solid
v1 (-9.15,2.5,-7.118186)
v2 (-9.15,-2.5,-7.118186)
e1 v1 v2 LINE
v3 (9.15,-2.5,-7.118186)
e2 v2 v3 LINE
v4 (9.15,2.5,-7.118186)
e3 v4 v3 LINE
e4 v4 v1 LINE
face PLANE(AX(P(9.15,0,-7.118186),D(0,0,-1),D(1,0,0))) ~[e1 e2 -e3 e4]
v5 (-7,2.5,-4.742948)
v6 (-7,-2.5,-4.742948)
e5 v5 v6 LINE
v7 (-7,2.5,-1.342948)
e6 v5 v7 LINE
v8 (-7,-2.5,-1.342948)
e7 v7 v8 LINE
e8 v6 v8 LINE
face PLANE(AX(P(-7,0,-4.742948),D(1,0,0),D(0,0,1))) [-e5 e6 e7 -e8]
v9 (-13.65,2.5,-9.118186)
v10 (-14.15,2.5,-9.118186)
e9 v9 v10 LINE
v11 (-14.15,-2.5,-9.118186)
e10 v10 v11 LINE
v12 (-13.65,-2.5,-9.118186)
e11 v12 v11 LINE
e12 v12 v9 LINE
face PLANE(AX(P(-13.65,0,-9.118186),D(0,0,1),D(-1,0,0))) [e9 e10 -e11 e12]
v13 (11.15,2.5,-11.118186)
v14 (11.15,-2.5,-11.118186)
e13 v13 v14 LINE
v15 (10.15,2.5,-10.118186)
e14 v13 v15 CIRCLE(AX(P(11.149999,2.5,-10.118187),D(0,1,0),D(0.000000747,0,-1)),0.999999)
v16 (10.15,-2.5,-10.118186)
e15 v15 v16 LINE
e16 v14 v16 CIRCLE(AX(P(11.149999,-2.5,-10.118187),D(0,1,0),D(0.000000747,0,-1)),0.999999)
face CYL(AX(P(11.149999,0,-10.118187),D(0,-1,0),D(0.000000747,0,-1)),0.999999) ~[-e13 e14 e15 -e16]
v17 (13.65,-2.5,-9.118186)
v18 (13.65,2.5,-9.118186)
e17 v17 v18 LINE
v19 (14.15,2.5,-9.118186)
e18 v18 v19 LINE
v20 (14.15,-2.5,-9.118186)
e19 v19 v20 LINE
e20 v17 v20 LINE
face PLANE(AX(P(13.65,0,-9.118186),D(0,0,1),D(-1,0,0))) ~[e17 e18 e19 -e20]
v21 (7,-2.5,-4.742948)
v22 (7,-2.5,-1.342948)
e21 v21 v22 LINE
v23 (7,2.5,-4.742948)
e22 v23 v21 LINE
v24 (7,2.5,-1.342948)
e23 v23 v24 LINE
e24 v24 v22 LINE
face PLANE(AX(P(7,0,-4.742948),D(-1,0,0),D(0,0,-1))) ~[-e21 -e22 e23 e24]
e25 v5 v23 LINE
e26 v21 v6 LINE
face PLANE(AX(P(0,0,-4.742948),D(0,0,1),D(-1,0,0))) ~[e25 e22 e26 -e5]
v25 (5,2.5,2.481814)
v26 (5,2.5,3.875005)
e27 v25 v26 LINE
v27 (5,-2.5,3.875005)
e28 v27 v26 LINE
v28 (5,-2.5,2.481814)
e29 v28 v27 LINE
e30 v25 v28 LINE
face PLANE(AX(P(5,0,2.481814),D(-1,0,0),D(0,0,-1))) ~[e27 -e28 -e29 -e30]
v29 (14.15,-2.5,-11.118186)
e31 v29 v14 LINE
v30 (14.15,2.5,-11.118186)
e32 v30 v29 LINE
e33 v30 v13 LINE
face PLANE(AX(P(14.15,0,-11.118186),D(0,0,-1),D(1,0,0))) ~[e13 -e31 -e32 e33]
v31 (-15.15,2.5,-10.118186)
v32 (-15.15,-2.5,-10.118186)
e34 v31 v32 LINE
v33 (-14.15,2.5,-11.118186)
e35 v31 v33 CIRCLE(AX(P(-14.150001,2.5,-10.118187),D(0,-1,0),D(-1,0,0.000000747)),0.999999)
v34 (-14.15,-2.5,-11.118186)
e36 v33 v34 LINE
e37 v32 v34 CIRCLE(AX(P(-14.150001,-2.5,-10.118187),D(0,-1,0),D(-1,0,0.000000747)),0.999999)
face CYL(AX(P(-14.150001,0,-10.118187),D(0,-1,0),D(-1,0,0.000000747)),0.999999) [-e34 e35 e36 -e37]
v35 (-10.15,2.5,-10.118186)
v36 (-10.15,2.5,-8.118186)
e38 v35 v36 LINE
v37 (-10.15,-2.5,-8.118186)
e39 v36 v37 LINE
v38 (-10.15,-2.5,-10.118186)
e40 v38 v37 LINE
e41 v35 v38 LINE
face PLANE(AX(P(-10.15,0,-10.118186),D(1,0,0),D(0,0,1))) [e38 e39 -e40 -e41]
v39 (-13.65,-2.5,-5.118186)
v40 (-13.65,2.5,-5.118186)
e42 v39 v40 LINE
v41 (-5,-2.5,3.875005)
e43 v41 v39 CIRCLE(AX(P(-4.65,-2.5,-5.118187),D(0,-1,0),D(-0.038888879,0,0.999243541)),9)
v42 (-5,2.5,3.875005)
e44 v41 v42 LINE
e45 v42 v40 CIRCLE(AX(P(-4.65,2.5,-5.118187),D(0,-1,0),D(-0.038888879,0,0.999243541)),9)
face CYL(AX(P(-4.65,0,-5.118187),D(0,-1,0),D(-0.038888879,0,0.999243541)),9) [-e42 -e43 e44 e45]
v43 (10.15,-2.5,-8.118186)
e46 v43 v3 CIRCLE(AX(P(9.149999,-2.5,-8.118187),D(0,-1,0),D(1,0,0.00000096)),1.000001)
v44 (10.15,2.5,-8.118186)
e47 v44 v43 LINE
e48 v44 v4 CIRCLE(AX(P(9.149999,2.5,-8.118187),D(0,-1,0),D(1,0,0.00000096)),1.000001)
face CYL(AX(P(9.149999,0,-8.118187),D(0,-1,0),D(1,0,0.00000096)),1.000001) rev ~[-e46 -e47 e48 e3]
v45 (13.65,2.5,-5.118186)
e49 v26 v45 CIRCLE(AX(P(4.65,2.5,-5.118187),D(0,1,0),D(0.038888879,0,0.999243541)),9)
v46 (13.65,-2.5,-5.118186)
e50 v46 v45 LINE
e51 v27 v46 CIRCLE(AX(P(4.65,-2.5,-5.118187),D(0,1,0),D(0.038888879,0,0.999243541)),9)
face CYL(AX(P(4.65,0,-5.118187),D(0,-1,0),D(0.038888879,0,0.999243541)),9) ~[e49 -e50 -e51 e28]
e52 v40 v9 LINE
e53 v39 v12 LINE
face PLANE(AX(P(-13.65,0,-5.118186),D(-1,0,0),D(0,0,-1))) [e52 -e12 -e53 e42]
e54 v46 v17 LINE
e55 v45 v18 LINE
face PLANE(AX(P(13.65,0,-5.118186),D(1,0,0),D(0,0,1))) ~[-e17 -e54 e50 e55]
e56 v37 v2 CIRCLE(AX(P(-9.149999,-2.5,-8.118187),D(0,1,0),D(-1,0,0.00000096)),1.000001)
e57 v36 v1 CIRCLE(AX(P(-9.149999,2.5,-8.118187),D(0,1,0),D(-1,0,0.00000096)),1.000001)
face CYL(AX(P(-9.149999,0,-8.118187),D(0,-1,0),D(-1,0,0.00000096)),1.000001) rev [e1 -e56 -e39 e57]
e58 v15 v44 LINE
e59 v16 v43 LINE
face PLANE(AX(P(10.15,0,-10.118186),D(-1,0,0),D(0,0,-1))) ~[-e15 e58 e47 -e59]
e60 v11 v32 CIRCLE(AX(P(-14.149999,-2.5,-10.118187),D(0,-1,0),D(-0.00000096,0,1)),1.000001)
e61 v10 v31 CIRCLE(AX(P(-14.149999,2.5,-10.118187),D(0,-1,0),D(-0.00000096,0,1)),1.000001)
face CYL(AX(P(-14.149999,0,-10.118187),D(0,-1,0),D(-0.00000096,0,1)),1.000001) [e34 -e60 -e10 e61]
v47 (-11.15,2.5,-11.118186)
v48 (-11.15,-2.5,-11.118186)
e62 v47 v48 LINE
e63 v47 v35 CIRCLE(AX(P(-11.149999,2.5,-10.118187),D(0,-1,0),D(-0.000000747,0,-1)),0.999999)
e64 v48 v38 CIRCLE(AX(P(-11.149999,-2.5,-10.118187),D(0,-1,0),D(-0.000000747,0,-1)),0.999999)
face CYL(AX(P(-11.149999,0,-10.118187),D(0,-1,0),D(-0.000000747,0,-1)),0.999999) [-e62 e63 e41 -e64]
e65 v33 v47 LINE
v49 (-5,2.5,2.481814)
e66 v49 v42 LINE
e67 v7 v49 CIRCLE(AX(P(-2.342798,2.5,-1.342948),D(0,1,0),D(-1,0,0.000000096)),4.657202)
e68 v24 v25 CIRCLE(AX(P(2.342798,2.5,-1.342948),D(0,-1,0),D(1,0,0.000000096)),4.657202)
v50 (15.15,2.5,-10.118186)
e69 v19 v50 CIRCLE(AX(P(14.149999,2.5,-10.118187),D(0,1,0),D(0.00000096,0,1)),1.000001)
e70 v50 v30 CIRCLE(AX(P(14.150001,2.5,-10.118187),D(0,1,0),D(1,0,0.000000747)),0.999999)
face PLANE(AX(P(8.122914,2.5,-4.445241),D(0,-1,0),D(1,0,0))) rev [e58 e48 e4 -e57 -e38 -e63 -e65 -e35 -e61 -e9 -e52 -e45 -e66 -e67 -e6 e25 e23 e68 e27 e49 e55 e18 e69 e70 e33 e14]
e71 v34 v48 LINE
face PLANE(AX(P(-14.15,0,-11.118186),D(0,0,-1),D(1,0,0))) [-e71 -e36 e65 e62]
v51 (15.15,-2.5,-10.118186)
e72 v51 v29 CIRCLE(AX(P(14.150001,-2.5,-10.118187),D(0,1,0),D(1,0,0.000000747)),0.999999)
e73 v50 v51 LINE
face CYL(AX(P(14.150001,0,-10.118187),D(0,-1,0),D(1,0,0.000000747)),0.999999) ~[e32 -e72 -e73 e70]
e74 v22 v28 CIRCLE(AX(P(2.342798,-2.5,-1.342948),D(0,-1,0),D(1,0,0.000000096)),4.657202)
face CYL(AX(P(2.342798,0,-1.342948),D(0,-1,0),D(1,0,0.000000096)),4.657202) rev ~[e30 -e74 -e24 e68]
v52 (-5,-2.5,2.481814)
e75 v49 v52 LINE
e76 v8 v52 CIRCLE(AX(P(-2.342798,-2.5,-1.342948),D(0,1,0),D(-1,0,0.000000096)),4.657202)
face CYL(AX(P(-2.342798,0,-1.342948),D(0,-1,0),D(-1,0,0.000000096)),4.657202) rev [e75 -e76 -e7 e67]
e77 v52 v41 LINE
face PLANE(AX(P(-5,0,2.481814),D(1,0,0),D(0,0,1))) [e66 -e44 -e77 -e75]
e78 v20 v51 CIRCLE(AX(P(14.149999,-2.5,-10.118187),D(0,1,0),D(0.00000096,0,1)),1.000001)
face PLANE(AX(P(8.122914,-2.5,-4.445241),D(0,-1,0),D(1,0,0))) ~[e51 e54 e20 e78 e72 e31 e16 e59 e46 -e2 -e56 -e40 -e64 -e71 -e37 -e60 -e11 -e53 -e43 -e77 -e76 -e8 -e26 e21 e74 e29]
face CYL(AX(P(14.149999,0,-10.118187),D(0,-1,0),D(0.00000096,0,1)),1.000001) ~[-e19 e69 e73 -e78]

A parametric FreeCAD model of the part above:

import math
import FreeCAD as App
import Part
import Sketcher
from FreeCAD import Vector
Q = App.Units.Quantity

doc = App.newDocument("Part")
params = doc.addObject("Spreadsheet::Sheet", "Params")
for row, (alias, value) in enumerate([
    ("sketch1_radius", "1.000001 mm"),
    ("sketch1_radius2", "9 mm"),
    ("sketch1_width", "3 mm"),
    ("sketch1_width2", "7 mm"),
    ("sketch1_height", "2 mm"),
    ("pad1_length", "5 mm"),
], start=1):
    params.set(f"A{row}", alias)
    params.set(f"B{row}", "=" + value)
    params.setAlias(f"B{row}", alias)

body = doc.addObject("PartDesign::Body", "Body")

sketch1 = doc.addObject("Sketcher::SketchObject", "Sketch")
body.addObject(sketch1)
sketch1.AttachmentSupport = (doc.XZ_Plane, [""])
sketch1.MapMode = "FlatFace"
sketch1.addGeometry(Part.LineSegment(Vector(-13.7, -9.1, 0), Vector(-14.2, -9.1, 0)), False)
sketch1.addGeometry(Part.ArcOfCircle(Part.Circle(Vector(-14.1, -10.1, 0), Vector(0, 0, 1), 1), math.radians(90), math.radians(180)), False)
sketch1.addGeometry(Part.ArcOfCircle(Part.Circle(Vector(-14.2, -10.1, 0), Vector(0, 0, 1), 1), math.radians(180), math.radians(270)), False)
sketch1.addGeometry(Part.LineSegment(Vector(-14.2, -11.1, 0), Vector(-11.2, -11.1, 0)), False)
sketch1.addGeometry(Part.ArcOfCircle(Part.Circle(Vector(-11.1, -10.1, 0), Vector(0, 0, 1), 1), math.radians(-90), math.radians(0)), False)
sketch1.addGeometry(Part.LineSegment(Vector(-10.2, -10.1, 0), Vector(-10.2, -8.1, 0)), False)
sketch1.addGeometry(Part.ArcOfCircle(Part.Circle(Vector(-9.1, -8.1, 0), Vector(0, 0, 1), 1), math.radians(90), math.radians(180)), False)
sketch1.addGeometry(Part.LineSegment(Vector(-9.2, -7.1, 0), Vector(0, -7.1, 0)), False)
sketch1.addGeometry(Part.LineSegment(Vector(0, -7.1, 0), Vector(0, -4.7, 0)), False)
sketch1.addGeometry(Part.LineSegment(Vector(0, -4.7, 0), Vector(-7, -4.7, 0)), False)
sketch1.addGeometry(Part.LineSegment(Vector(-7, -4.7, 0), Vector(-7, -1.3, 0)), False)
sketch1.addGeometry(Part.ArcOfCircle(Part.Circle(Vector(-2.3, -1.3, 0), Vector(0, 0, 1), 4.7), math.radians(125), math.radians(180)), False)
sketch1.addGeometry(Part.LineSegment(Vector(-5, 2.5, 0), Vector(-5, 3.9, 0)), False)
sketch1.addGeometry(Part.ArcOfCircle(Part.Circle(Vector(-4.7, -5.1, 0), Vector(0, 0, 1), 9), math.radians(92), math.radians(180)), False)
sketch1.addGeometry(Part.LineSegment(Vector(-13.7, -5.1, 0), Vector(-13.7, -9.1, 0)), False)
sketch1.addConstraint(Sketcher.Constraint("Tangent", 0, 2, 1, 1))
sketch1.addConstraint(Sketcher.Constraint("Tangent", 1, 2, 2, 1))
sketch1.addConstraint(Sketcher.Constraint("Tangent", 2, 2, 3, 1))
sketch1.addConstraint(Sketcher.Constraint("Tangent", 3, 2, 4, 1))
sketch1.addConstraint(Sketcher.Constraint("Tangent", 4, 2, 5, 1))
sketch1.addConstraint(Sketcher.Constraint("Tangent", 5, 2, 6, 2))
sketch1.addConstraint(Sketcher.Constraint("Tangent", 6, 1, 7, 1))
sketch1.addConstraint(Sketcher.Constraint("Coincident", 7, 2, 8, 1))
sketch1.addConstraint(Sketcher.Constraint("Coincident", 8, 2, 9, 1))
sketch1.addConstraint(Sketcher.Constraint("Coincident", 9, 2, 10, 1))
sketch1.addConstraint(Sketcher.Constraint("Tangent", 10, 2, 11, 2))
sketch1.addConstraint(Sketcher.Constraint("Coincident", 11, 1, 12, 1))
sketch1.addConstraint(Sketcher.Constraint("Coincident", 12, 2, 13, 1))
sketch1.addConstraint(Sketcher.Constraint("Tangent", 13, 2, 14, 1))
sketch1.addConstraint(Sketcher.Constraint("Coincident", 14, 2, 0, 1))
sketch1.addConstraint(Sketcher.Constraint("Horizontal", 0))
sketch1.addConstraint(Sketcher.Constraint("Horizontal", 3))
sketch1.addConstraint(Sketcher.Constraint("Vertical", 5))
sketch1.addConstraint(Sketcher.Constraint("Horizontal", 7))
sketch1.addConstraint(Sketcher.Constraint("Vertical", 8))
sketch1.addConstraint(Sketcher.Constraint("Horizontal", 9))
sketch1.addConstraint(Sketcher.Constraint("Vertical", 10))
sketch1.addConstraint(Sketcher.Constraint("Vertical", 12))
sketch1.addConstraint(Sketcher.Constraint("Vertical", 14))
sketch1.addConstraint(Sketcher.Constraint("Equal", 1, 2))
sketch1.addConstraint(Sketcher.Constraint("Equal", 2, 4))
sketch1.addConstraint(Sketcher.Constraint("Equal", 4, 6))
sketch1.addConstraint(Sketcher.Constraint("PointOnObject", 7, 2, -2))
sketch1.addConstraint(Sketcher.Constraint("Horizontal", 4, 3, 1, 2))
sketch1.addConstraint(Sketcher.Constraint("Radius", 1, Q("1.000001 mm")))
sketch1.addConstraint(Sketcher.Constraint("Radius", 13, Q("9 mm")))
sketch1.addConstraint(Sketcher.Constraint("DistanceX", 3, 1, 3, 2, Q("3 mm")))
sketch1.addConstraint(Sketcher.Constraint("DistanceX", 9, 2, 9, 1, Q("7 mm")))
sketch1.addConstraint(Sketcher.Constraint("DistanceY", 5, 1, 5, 2, Q("2 mm")))
sketch1.addConstraint(Sketcher.Constraint("DistanceY", 14, 2, 14, 1, Q("4 mm")))
sketch1.addConstraint(Sketcher.Constraint("DistanceX", 0, 2, 0, 1, Q("0.5 mm")))
sketch1.addConstraint(Sketcher.Constraint("DistanceY", 10, 1, 10, 2, Q("3.4 mm")))
sketch1.addConstraint(Sketcher.Constraint("DistanceX", 11, 1, -1, 1, Q("5 mm")))
sketch1.addConstraint(Sketcher.Constraint("DistanceX", 7, 1, 7, 2, Q("9.15 mm")))
sketch1.addConstraint(Sketcher.Constraint("Radius", 11, Q("4.657202 mm")))
sketch1.addConstraint(Sketcher.Constraint("DistanceY", 13, 3, 11, 1, Q("7.600001 mm")))
sketch1.addConstraint(Sketcher.Constraint("DistanceY", 11, 3, -1, 1, Q("1.342948 mm")))
sketch1.setExpression("Constraints[29]", "Params.sketch1_radius")
sketch1.setExpression("Constraints[30]", "Params.sketch1_radius2")
sketch1.setExpression("Constraints[31]", "Params.sketch1_width")
sketch1.setExpression("Constraints[32]", "Params.sketch1_width2")
sketch1.setExpression("Constraints[33]", "Params.sketch1_height")
pad1 = doc.addObject("PartDesign::Pad", "Pad")
body.addObject(pad1)
pad1.Profile = sketch1
pad1.setExpression("Length", "Params.pad1_length")
pad1.Midplane = True
body2 = doc.addObject("PartDesign::Body", "Body001")
doc.recompute()

body2.BaseFeature = body
doc.recompute()

mirroring = doc.addObject("Part::Mirroring", "Mirroring")
mirroring.Source = body
mirroring.Base = Vector(0, 0, -5.930567)
mirroring.Normal = Vector(1, 0, 0)
body3 = doc.addObject("PartDesign::Body", "Body002")
body3.BaseFeature = mirroring
boolean = doc.addObject("PartDesign::Boolean", "Boolean")
body2.addObject(boolean)
boolean.Type = "Fuse"
boolean.addObjects([body3])
doc.recompute()
mirroring.Visibility = False

doc.recompute()
